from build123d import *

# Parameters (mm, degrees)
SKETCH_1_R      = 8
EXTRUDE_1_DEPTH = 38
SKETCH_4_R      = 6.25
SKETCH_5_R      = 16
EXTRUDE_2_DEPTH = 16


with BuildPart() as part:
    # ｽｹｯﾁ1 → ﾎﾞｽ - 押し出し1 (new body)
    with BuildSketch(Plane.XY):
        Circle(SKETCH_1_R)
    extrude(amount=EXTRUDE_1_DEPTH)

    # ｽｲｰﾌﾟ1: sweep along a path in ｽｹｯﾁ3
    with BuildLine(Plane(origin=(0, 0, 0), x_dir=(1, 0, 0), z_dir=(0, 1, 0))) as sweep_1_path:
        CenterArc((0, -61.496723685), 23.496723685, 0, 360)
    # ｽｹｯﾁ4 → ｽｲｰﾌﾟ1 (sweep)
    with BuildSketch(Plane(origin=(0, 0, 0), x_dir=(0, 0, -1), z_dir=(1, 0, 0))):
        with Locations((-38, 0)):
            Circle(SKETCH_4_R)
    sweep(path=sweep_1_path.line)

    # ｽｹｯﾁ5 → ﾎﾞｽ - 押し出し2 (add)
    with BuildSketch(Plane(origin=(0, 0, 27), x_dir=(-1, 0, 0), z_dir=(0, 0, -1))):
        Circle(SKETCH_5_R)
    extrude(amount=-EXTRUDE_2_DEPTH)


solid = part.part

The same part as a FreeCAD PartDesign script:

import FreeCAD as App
import Part
import Sketcher
from FreeCAD import Vector

doc = App.newDocument("Part")
body = doc.addObject("PartDesign::Body", "Body")

# Sketch on XY plane
sketch1 = body.newObject("Sketcher::SketchObject", "Sketch")
sketch1.AttachmentSupport = (doc.getObject("XY_Plane"), [""])
sketch1.MapMode = "FlatFace"
sketch1.addGeometry(Part.Circle(Vector(0, 0, 0), Vector(0, 0, 1), 8), False)
sketch1.addConstraint([
    Sketcher.Constraint("Coincident", 0, 3, -1, 1),
    Sketcher.Constraint("Diameter", 0, 16.0),
])
pad1 = body.newObject("PartDesign::Pad", "Pad")
pad1.Profile = sketch1
pad1.Length = 38

# Sketch on YZ plane
sketch2 = body.newObject("Sketcher::SketchObject", "Sketch001")
sketch2.AttachmentSupport = (doc.getObject("YZ_Plane"), [""])
sketch2.MapMode = "FlatFace"
sketch2.addGeometry(Part.Circle(Vector(0, 38, 0), Vector(0, 0, 1), 6), False)
sketch2.addConstraint([
    Sketcher.Constraint("PointOnObject", 0, 3, -2),
    Sketcher.Constraint("Diameter", 0, 12.5),
    Sketcher.Constraint("DistanceY", -1, 1, 0, 3, 38.0),
])

# Sketch on XZ plane
sketch3 = body.newObject("Sketcher::SketchObject", "Sketch002")
sketch3.AttachmentSupport = (doc.getObject("XZ_Plane"), [""])
sketch3.MapMode = "FlatFace"
sketch3.addGeometry(Part.Circle(Vector(0, 61, 0), Vector(0, 0, 1), 23), False)
sketch3.addConstraint([
    Sketcher.Constraint("PointOnObject", 0, 3, -2),
    Sketcher.Constraint("Diameter", 0, 46.993447),
    Sketcher.Constraint("DistanceY", -1, 1, 0, 3, 61.496724),
])
doc.recompute()

additivepipe = body.newObject("PartDesign::AdditivePipe", "AdditivePipe")
additivepipe.Profile = sketch2
additivepipe.Spine = (sketch3, ["Edge1"])

# Sketch on XY plane
sketch4 = body.newObject("Sketcher::SketchObject", "Sketch003")
sketch4.AttachmentSupport = (doc.getObject("XY_Plane"), [""])
sketch4.MapMode = "FlatFace"
sketch4.AttachmentOffset = App.Placement(Vector(0, 0, 27), App.Rotation())
sketch4.addGeometry(Part.Circle(Vector(0, 0, 0), Vector(0, 0, 1), 16), False)
sketch4.addConstraint([
    Sketcher.Constraint("Coincident", 0, 3, -1, 1),
    Sketcher.Constraint("Diameter", 0, 32.0),
])
pad2 = body.newObject("PartDesign::Pad", "Pad001")
pad2.Profile = sketch4
pad2.Length = 16

doc.recompute()
